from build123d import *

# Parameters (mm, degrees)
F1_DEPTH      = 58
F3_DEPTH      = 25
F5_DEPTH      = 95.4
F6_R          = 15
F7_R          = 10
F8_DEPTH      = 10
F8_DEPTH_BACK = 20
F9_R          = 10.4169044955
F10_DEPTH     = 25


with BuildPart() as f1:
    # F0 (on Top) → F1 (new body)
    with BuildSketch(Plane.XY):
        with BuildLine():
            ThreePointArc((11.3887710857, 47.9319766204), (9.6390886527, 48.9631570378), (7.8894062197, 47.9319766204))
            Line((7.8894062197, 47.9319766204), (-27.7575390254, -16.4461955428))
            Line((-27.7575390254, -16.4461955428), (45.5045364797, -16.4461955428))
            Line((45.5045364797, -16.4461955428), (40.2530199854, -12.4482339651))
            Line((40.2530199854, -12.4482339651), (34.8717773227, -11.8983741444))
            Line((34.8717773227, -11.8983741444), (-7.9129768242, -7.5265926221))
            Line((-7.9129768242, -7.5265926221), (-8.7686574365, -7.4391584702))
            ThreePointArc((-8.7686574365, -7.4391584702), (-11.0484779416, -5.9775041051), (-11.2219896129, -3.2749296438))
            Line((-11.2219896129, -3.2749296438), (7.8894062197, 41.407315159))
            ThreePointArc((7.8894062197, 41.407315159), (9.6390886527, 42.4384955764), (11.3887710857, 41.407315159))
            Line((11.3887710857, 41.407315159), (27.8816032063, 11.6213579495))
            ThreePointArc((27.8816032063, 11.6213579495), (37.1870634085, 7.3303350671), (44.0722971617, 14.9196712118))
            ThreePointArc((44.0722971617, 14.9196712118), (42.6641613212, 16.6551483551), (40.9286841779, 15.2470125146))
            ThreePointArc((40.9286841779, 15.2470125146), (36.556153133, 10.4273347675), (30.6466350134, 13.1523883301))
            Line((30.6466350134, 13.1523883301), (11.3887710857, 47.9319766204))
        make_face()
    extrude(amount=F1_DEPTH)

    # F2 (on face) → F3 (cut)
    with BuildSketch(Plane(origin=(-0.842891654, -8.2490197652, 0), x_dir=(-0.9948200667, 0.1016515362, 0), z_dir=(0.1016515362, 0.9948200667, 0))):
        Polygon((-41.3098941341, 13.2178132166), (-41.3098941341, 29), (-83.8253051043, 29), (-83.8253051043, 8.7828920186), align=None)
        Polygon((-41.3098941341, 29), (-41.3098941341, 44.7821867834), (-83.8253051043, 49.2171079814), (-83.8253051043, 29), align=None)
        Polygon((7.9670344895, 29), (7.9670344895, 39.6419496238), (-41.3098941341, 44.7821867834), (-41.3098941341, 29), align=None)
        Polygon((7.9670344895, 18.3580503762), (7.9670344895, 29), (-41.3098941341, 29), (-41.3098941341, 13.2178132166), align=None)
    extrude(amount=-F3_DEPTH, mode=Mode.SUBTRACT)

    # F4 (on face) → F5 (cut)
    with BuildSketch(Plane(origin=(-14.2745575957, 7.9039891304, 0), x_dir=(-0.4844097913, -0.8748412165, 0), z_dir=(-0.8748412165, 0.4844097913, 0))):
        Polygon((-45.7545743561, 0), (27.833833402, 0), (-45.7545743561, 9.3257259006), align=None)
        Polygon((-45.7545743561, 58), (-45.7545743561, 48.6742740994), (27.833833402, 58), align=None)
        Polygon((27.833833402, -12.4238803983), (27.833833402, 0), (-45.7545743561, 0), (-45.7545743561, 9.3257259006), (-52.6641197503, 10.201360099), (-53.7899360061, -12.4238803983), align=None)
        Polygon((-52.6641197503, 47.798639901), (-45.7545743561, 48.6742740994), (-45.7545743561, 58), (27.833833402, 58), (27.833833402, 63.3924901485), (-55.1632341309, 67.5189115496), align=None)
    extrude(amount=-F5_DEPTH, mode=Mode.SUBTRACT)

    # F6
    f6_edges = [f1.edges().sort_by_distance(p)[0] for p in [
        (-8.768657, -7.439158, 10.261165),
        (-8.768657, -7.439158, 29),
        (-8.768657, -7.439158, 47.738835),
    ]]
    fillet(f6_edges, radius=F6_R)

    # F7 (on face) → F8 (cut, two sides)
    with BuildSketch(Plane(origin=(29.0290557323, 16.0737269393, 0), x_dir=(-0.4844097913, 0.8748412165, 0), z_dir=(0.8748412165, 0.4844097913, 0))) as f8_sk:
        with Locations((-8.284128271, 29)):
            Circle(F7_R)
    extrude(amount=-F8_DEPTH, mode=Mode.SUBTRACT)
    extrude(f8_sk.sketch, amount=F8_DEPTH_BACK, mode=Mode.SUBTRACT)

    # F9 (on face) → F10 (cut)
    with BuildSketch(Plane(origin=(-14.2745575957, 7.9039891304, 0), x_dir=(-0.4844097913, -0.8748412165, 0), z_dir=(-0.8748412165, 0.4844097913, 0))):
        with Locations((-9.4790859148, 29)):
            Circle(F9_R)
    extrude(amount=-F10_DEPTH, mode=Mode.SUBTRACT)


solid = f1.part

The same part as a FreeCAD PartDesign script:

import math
import FreeCAD as App
import Part
import Sketcher
from FreeCAD import Vector
Q = App.Units.Quantity


def edges_at(feature, points):
    """Names of the edges that pass closest to the given points."""
    edges = feature.Shape.Edges
    near = lambda p: min(range(len(edges)), key=lambda i: edges[i].distToShape(Part.Vertex(*p))[0])
    return sorted({f"Edge{near(p) + 1}" for p in points})


def add_polygon(sketch, points):
    """Adds a closed chain of lines whose ends are joined by coincident constraints."""
    first, n = sketch.GeometryCount, len(points)
    for a, b in zip(points, points[1:] + points[:1]):
        sketch.addGeometry(Part.LineSegment(App.Vector(*a, 0), App.Vector(*b, 0)), False)
    for i in range(n):
        sketch.addConstraint(Sketcher.Constraint("Coincident", first + i, 2, first + (i + 1) % n, 1))

doc = App.newDocument("Part")
body = doc.addObject("PartDesign::Body", "Body")

sketch1 = body.newObject("Sketcher::SketchObject", "Sketch")
sketch1.AttachmentSupport = (doc.getObject("XY_Plane"), [""])
sketch1.MapMode = "FlatFace"
sketch1.addGeometry([
    Part.ArcOfCircle(Part.Circle(Vector(9.639089, 46.963157, 0), Vector(0, 0, 1), 2), math.radians(28.973811), math.radians(151.026189)),
    Part.LineSegment(Vector(7.889406, 47.931977, 0), Vector(-27.757539, -16.446196, 0)),
    Part.LineSegment(Vector(-27.757539, -16.446196, 0), Vector(45.504536, -16.446196, 0)),
    Part.LineSegment(Vector(45.504536, -16.446196, 0), Vector(40.25302, -12.448234, 0)),
    Part.LineSegment(Vector(40.25302, -12.448234, 0), Vector(34.871777, -11.898374, 0)),
    Part.LineSegment(Vector(34.871777, -11.898374, 0), Vector(-7.912977, -7.526593, 0)),
    Part.LineSegment(Vector(-7.912977, -7.526593, 0), Vector(-8.768657, -7.439158, 0)),
    Part.ArcOfCircle(Part.Circle(Vector(-8.463703, -4.454698, 0), Vector(0, 0, 1), 3), math.radians(156.842737), math.radians(264.165719)),
    Part.LineSegment(Vector(-11.22199, -3.27493, 0), Vector(7.889406, 41.407315, 0)),
    Part.ArcOfCircle(Part.Circle(Vector(9.639089, 40.438496, 0), Vector(0, 0, 1), 2), math.radians(28.973811), math.radians(151.026189)),
    Part.LineSegment(Vector(11.388771, 41.407315, 0), Vector(27.881603, 11.621358, 0)),
    Part.ArcOfCircle(Part.Circle(Vector(35.458262, 15.816642, 0), Vector(0, 0, 1), 8.66061), math.radians(-151.026189), math.radians(-5.944729)),
    Part.ArcOfCircle(Part.Circle(Vector(42.500491, 15.083342, 0), Vector(0, 0, 1), 1.580305), math.radians(-5.944729), math.radians(174.055271)),
    Part.ArcOfCircle(Part.Circle(Vector(35.458262, 15.816642, 0), Vector(0, 0, 1), 5.5), math.radians(-151.026189), math.radians(-5.944729)),
    Part.LineSegment(Vector(30.646635, 13.152388, 0), Vector(11.388771, 47.931977, 0)),
], False)
sketch1.addConstraint([
    Sketcher.Constraint("Coincident", 0, 2, 1, 1),
    Sketcher.Constraint("Coincident", 1, 2, 2, 1),
    Sketcher.Constraint("Coincident", 2, 2, 3, 1),
    Sketcher.Constraint("Coincident", 3, 2, 4, 1),
    Sketcher.Constraint("Coincident", 4, 2, 5, 1),
    Sketcher.Constraint("Coincident", 5, 2, 6, 1),
    Sketcher.Constraint("Coincident", 6, 2, 7, 2),
    Sketcher.Constraint("Coincident", 7, 1, 8, 1),
    Sketcher.Constraint("Coincident", 8, 2, 9, 2),
    Sketcher.Constraint("Coincident", 9, 1, 10, 1),
    Sketcher.Constraint("Coincident", 10, 2, 11, 1),
    Sketcher.Constraint("Coincident", 11, 2, 12, 1),
    Sketcher.Constraint("Coincident", 12, 2, 13, 2),
    Sketcher.Constraint("Coincident", 13, 1, 14, 1),
    Sketcher.Constraint("Coincident", 14, 2, 0, 1),
    Sketcher.Constraint("Horizontal", 2),
    Sketcher.Constraint("Coincident", 13, 3, 11, 3),
    Sketcher.Constraint("Radius", 0, Q("2 mm")),
    Sketcher.Constraint("Radius", 7, Q("3 mm")),
    Sketcher.Constraint("Radius", 9, Q("2 mm")),
    Sketcher.Constraint("Radius", 13, Q("5.5 mm")),
    Sketcher.Constraint("Radius", 11, Q("8.66061 mm")),
    Sketcher.Constraint("DistanceY", 7, 3, -1, 1, Q("4.454698 mm")),
    Sketcher.Constraint("DistanceY", 12, 3, 11, 3, Q("0.7333 mm")),
    Sketcher.Constraint("DistanceX", 1, 2, 11, 3, Q("63.215801 mm")),
    Sketcher.Constraint("Distance", 3, Q("6.600161 mm")),
    Sketcher.Constraint("Distance", 5, Q("43.00753 mm")),
    Sketcher.Constraint("DistanceX", 2, 1, 2, 2, Q("73.262076 mm")),
    Sketcher.Constraint("DistanceX", -1, 1, 0, 3, Q("9.639089 mm")),
    Sketcher.Constraint("DistanceX", -1, 1, 9, 3, Q("9.639089 mm")),
    Sketcher.Constraint("DistanceX", -1, 1, 11, 3, Q("35.458262 mm")),
    Sketcher.Constraint("DistanceY", -1, 1, 12, 3, Q("15.083342 mm")),
    Sketcher.Constraint("DistanceX", -1, 1, 3, 2, Q("40.25302 mm")),
    Sketcher.Constraint("DistanceY", 6, 2, -1, 1, Q("7.439158 mm")),
    Sketcher.Constraint("DistanceX", 7, 1, -1, 1, Q("11.22199 mm")),
    Sketcher.Constraint("DistanceY", 7, 1, -1, 1, Q("3.27493 mm")),
    Sketcher.Constraint("DistanceX", -1, 1, 9, 1, Q("11.388771 mm")),
    Sketcher.Constraint("DistanceY", -1, 1, 11, 2, Q("14.919671 mm")),
    Sketcher.Constraint("DistanceY", -1, 1, 13, 1, Q("13.152388 mm")),
    Sketcher.Constraint("DistanceX", -1, 1, 14, 2, Q("11.388771 mm")),
    Sketcher.Constraint("DistanceY", 9, 3, 0, 3, Q("6.524661 mm")),
    Sketcher.Constraint("DistanceY", 0, 3, 0, 2, Q("0.96882 mm")),
    Sketcher.Constraint("DistanceY", 1, 2, 9, 3, Q("56.884691 mm")),
    Sketcher.Constraint("DistanceY", 3, 2, 4, 2, Q("0.54986 mm")),
    Sketcher.Constraint("DistanceX", 4, 2, 2, 2, Q("10.632759 mm")),
    Sketcher.Constraint("DistanceY", 4, 2, 5, 2, Q("4.371782 mm")),
    Sketcher.Constraint("DistanceY", 9, 3, 8, 2, Q("0.96882 mm")),
    Sketcher.Constraint("DistanceX", 10, 2, 11, 3, Q("7.576658 mm")),
    Sketcher.Constraint("DistanceY", 3, 2, 10, 2, Q("24.069592 mm")),
    Sketcher.Constraint("DistanceY", 12, 3, 12, 2, Q("0.163671 mm")),
])
pad1 = body.newObject("PartDesign::Pad", "Pad")
pad1.Profile = sketch1
pad1.Length = 58

sketch2 = body.newObject("Sketcher::SketchObject", "Sketch001")
sketch2.Placement = App.Placement(Vector(-0.842892, -8.24902, 0), App.Rotation(Vector(-0.994820067, 0.101651536, 0), Vector(0, 0, 1), Vector(0.101651536, 0.994820067, 0), "ZXY"))
add_polygon(sketch2, [(7.967034, 39.64195), (-83.825305, 49.217108), (-83.825305, 8.782892), (7.967034, 18.35805)])
sketch2.addConstraint([
    Sketcher.Constraint("Vertical", 1),
    Sketcher.Constraint("Vertical", 3),
    Sketcher.Constraint("Equal", 0, 2),
    Sketcher.Constraint("DistanceY", 3, 1, 3, 2, Q("21.283899 mm")),
    Sketcher.Constraint("DistanceY", 1, 2, 1, 1, Q("40.434216 mm")),
    Sketcher.Constraint("DistanceY", -1, 1, 0, 2, Q("49.217108 mm")),
    Sketcher.Constraint("DistanceX", 1, 2, 2, 2, Q("91.79234 mm")),
    Sketcher.Constraint("DistanceX", 0, 2, -1, 1, Q("83.825305 mm")),
])
pocket1 = body.newObject("PartDesign::Pocket", "Pocket")
pocket1.Profile = sketch2
pocket1.Length = 25

sketch3 = body.newObject("Sketcher::SketchObject", "Sketch002")
sketch3.Placement = App.Placement(Vector(-14.274558, 7.903989, 0), App.Rotation(Vector(-0.484409791, -0.874841217, 0), Vector(0, 0, 1.000000001), Vector(-0.874841217, 0.484409791, 0), "ZXY"))
add_polygon(sketch3, [(27.833833, 0), (-45.754574, 9.325726), (-52.66412, 10.20136), (-53.789936, -12.42388), (27.833833, -12.42388)])
add_polygon(sketch3, [(-45.754574, 48.674274), (27.833833, 58), (27.833833, 63.39249), (-55.163234, 67.518912), (-52.66412, 47.79864)])
sketch3.addConstraint([
    Sketcher.Constraint("Horizontal", 3),
    Sketcher.Constraint("Vertical", 4),
    Sketcher.Constraint("Vertical", 6),
    Sketcher.Constraint("PointOnObject", 4, 2, -1),
    Sketcher.Constraint("Parallel", 0, 1),
    Sketcher.Constraint("Perpendicular", 5, 8),
    Sketcher.Constraint("Perpendicular", 8, 9),
    Sketcher.Constraint("Vertical", 4, 2, 5, 2),
    Sketcher.Constraint("Vertical", 1, 2, 8, 2),
    Sketcher.Constraint("Vertical", 0, 2, 9, 2),
    Sketcher.Constraint("Equal", 0, 5),
    Sketcher.Constraint("DistanceY", -1, 1, 5, 2, Q("58 mm")),
    Sketcher.Constraint("DistanceX", 3, 1, 3, 2, Q("81.623769 mm")),
    Sketcher.Constraint("DistanceY", 4, 1, 4, 2, Q("12.42388 mm")),
    Sketcher.Constraint("DistanceY", 6, 1, 6, 2, Q("5.39249 mm")),
    Sketcher.Constraint("DistanceX", 7, 2, 2, 2, Q("1.373298 mm")),
    Sketcher.Constraint("Distance", 0, Q("74.17697 mm")),
    Sketcher.Constraint("Distance", 1, Q("6.964808 mm")),
    Sketcher.Constraint("DistanceX", 1, 2, -1, 1, Q("52.66412 mm")),
    Sketcher.Constraint("DistanceY", -1, 1, 1, 2, Q("10.20136 mm")),
])
pocket2 = body.newObject("PartDesign::Pocket", "Pocket001")
pocket2.Profile = sketch3
pocket2.Length = 95.4
doc.recompute()

fillet = body.newObject("PartDesign::Fillet", "Fillet")
fillet.Base = (pocket2, edges_at(pocket2, [(-8.769, -7.439, 10.261), (-8.769, -7.439, 29), (-8.769, -7.439, 47.739)]))
fillet.Radius = 15

sketch4 = body.newObject("Sketcher::SketchObject", "Sketch003")
sketch4.Placement = App.Placement(Vector(29.029056, 16.073727, 0), App.Rotation(Vector(-0.484409791, 0.874841217, 0), Vector(0, 0, 1.000000001), Vector(0.874841217, 0.484409791, 0), "ZXY"))
sketch4.addGeometry(Part.Circle(Vector(-8.284128, 29, 0), Vector(0, 0, 1), 10), False)
sketch4.addConstraint([
    Sketcher.Constraint("Diameter", 0, Q("20 mm")),
    Sketcher.Constraint("DistanceY", -1, 1, 0, 3, Q("29 mm")),
    Sketcher.Constraint("DistanceX", 0, 3, -1, 1, Q("8.284128 mm")),
])
pocket3 = body.newObject("PartDesign::Pocket", "Pocket002")
pocket3.Profile = sketch4
pocket3.Type = "TwoLengths"
pocket3.Length = 10
pocket3.Length2 = 20

sketch5 = body.newObject("Sketcher::SketchObject", "Sketch004")
sketch5.Placement = App.Placement(Vector(-14.274558, 7.903989, 0), App.Rotation(Vector(-0.484409791, -0.874841217, 0), Vector(0, 0, 1.000000001), Vector(-0.874841217, 0.484409791, 0), "ZXY"))
sketch5.addGeometry(Part.Circle(Vector(-9.479086, 29, 0), Vector(0, 0, 1), 10.416904), False)
sketch5.addConstraint([
    Sketcher.Constraint("DistanceY", -1, 1, 0, 3, Q("29 mm")),
    Sketcher.Constraint("Diameter", 0, Q("20.833809 mm")),
    Sketcher.Constraint("DistanceX", 0, 3, -1, 1, Q("9.479086 mm")),
])
pocket4 = body.newObject("PartDesign::Pocket", "Pocket003")
pocket4.Profile = sketch5
pocket4.Length = 25

doc.recompute()
